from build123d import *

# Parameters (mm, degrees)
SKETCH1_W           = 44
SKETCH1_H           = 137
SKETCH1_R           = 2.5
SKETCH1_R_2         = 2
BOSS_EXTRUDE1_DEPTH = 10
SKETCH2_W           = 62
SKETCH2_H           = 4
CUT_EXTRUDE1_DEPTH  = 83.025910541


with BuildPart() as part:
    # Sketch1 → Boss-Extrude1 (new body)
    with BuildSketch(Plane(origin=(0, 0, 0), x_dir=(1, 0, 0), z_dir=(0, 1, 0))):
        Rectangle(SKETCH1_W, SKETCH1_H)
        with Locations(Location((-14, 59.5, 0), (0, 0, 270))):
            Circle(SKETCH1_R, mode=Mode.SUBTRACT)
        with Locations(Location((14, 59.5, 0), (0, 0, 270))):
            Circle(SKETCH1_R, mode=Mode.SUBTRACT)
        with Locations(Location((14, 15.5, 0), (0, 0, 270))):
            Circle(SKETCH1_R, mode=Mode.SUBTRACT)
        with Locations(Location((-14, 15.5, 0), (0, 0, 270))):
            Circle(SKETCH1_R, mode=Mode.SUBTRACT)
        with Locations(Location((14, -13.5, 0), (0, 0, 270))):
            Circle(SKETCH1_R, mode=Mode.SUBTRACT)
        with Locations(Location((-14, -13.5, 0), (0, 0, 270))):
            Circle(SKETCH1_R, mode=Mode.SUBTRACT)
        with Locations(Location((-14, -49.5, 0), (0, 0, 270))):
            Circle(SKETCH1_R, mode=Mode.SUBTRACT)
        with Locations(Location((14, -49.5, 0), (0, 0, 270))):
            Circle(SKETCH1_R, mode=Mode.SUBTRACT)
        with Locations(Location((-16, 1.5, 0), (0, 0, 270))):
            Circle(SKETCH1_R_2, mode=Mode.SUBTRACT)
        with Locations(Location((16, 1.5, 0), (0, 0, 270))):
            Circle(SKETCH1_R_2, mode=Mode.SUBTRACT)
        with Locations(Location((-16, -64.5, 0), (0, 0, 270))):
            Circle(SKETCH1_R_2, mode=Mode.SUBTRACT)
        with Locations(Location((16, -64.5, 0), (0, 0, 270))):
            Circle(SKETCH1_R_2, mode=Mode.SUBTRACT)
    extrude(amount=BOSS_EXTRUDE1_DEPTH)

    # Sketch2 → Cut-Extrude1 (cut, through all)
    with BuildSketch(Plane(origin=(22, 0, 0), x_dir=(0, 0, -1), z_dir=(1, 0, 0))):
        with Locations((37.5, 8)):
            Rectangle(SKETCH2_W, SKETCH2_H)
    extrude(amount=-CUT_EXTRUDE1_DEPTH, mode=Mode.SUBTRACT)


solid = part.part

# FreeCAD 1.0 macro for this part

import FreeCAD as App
import Part
import Sketcher

V = App.Vector
Q = App.Units.Quantity


def add_polygon(sketch, points):
    """Adds a closed chain of lines whose ends are joined by coincident constraints."""
    first, n = sketch.GeometryCount, len(points)
    for a, b in zip(points, points[1:] + points[:1]):
        sketch.addGeometry(Part.LineSegment(App.Vector(*a, 0), App.Vector(*b, 0)), False)
    for i in range(n):
        sketch.addConstraint(Sketcher.Constraint("Coincident", first + i, 2, first + (i + 1) % n, 1))

doc = App.newDocument("Part")
params = doc.addObject("Spreadsheet::Sheet", "Params")
for row, (alias, value) in enumerate([
    ("sketch1_diameter", "4 mm"),
    ("sketch1_diameter2", "5 mm"),
    ("sketch1_width", "44 mm"),
    ("sketch1_height", "137 mm"),
    ("pad1_length", "10 mm"),
    ("sketch2_width", "4 mm"),
    ("sketch2_height", "62 mm"),
], start=1):
    params.set(f"A{row}", alias)
    params.set(f"B{row}", "=" + value)
    params.setAlias(f"B{row}", alias)

body = doc.addObject("PartDesign::Body", "Body")

# Sketch on XZ plane
sketch1 = body.newObject("Sketcher::SketchObject", "Sketch")
sketch1.AttachmentSupport = (doc.getObject("XZ_Plane"), [""])
sketch1.MapMode = "FlatFace"
add_polygon(sketch1, [(-22, -68.5), (-22, 68.5), (22, 68.5), (22, -68.5)])  # lines 0-3
sketch1.addGeometry(Part.Circle(V(-16, 64.5, 0), V(0, 0, 1), 2), False)  # 4
sketch1.addGeometry(Part.Circle(V(-14, 49.5, 0), V(0, 0, 1), 2.5), False)  # 5
sketch1.addGeometry(Part.Circle(V(-14, 13.5, 0), V(0, 0, 1), 2.5), False)  # 6
sketch1.addGeometry(Part.Circle(V(16, 64.5, 0), V(0, 0, 1), 2), False)  # 7
sketch1.addGeometry(Part.Circle(V(14, 49.5, 0), V(0, 0, 1), 2.5), False)  # 8
sketch1.addGeometry(Part.Circle(V(14, 13.5, 0), V(0, 0, 1), 2.5), False)  # 9
sketch1.addGeometry(Part.Circle(V(-16, -1.5, 0), V(0, 0, 1), 2), False)  # 10
sketch1.addGeometry(Part.Circle(V(-14, -15.5, 0), V(0, 0, 1), 2.5), False)  # 11
sketch1.addGeometry(Part.Circle(V(-14, -59.5, 0), V(0, 0, 1), 2.5), False)  # 12
sketch1.addGeometry(Part.Circle(V(16, -1.5, 0), V(0, 0, 1), 2), False)  # 13
sketch1.addGeometry(Part.Circle(V(14, -15.5, 0), V(0, 0, 1), 2.5), False)  # 14
sketch1.addGeometry(Part.Circle(V(14, -59.5, 0), V(0, 0, 1), 2.5), False)  # 15
sketch1.addConstraint(Sketcher.Constraint("Vertical", 0))
sketch1.addConstraint(Sketcher.Constraint("Horizontal", 1))
sketch1.addConstraint(Sketcher.Constraint("Vertical", 2))
sketch1.addConstraint(Sketcher.Constraint("Horizontal", 3))
sketch1.addConstraint(Sketcher.Constraint("Equal", 5, 6))
sketch1.addConstraint(Sketcher.Constraint("Equal", 4, 7))
sketch1.addConstraint(Sketcher.Constraint("Equal", 6, 8))
sketch1.addConstraint(Sketcher.Constraint("Equal", 8, 9))
sketch1.addConstraint(Sketcher.Constraint("Equal", 7, 10))
sketch1.addConstraint(Sketcher.Constraint("Equal", 9, 11))
sketch1.addConstraint(Sketcher.Constraint("Equal", 11, 12))
sketch1.addConstraint(Sketcher.Constraint("Equal", 10, 13))
sketch1.addConstraint(Sketcher.Constraint("Equal", 12, 14))
sketch1.addConstraint(Sketcher.Constraint("Equal", 14, 15))
sketch1.addConstraint(Sketcher.Constraint("Symmetric", 0, 2, 2, 2, -1, 1))
sketch1.addConstraint(Sketcher.Constraint("Symmetric", 4, 3, 7, 3, -2))
sketch1.addConstraint(Sketcher.Constraint("Symmetric", 5, 3, 8, 3, -2))
sketch1.addConstraint(Sketcher.Constraint("Symmetric", 6, 3, 9, 3, -2))
sketch1.addConstraint(Sketcher.Constraint("Symmetric", 10, 3, 13, 3, -2))
sketch1.addConstraint(Sketcher.Constraint("Symmetric", 11, 3, 14, 3, -2))
sketch1.addConstraint(Sketcher.Constraint("Symmetric", 12, 3, 15, 3, -2))
sketch1.addConstraint(Sketcher.Constraint("Vertical", 5, 3, 6, 3))
sketch1.addConstraint(Sketcher.Constraint("Vertical", 4, 3, 10, 3))
sketch1.addConstraint(Sketcher.Constraint("Vertical", 6, 3, 11, 3))
sketch1.addConstraint(Sketcher.Constraint("Vertical", 11, 3, 12, 3))
sketch1.addConstraint(Sketcher.Constraint("Diameter", 4, Q("4 mm")))
sketch1.addConstraint(Sketcher.Constraint("Diameter", 5, Q("5 mm")))
sketch1.addConstraint(Sketcher.Constraint("DistanceX", 1, 1, 1, 2, Q("44 mm")))
sketch1.addConstraint(Sketcher.Constraint("DistanceY", 0, 1, 0, 2, Q("137 mm")))
sketch1.addConstraint(Sketcher.Constraint("DistanceX", 4, 3, -1, 1, Q("16 mm")))
sketch1.addConstraint(Sketcher.Constraint("DistanceX", 5, 3, -1, 1, Q("14 mm")))
sketch1.addConstraint(Sketcher.Constraint("DistanceY", 5, 3, 4, 3, Q("15 mm")))
sketch1.addConstraint(Sketcher.Constraint("DistanceY", 6, 3, 5, 3, Q("36 mm")))
sketch1.addConstraint(Sketcher.Constraint("DistanceY", 10, 3, 6, 3, Q("15 mm")))
sketch1.addConstraint(Sketcher.Constraint("DistanceY", 11, 3, 10, 3, Q("14 mm")))
sketch1.addConstraint(Sketcher.Constraint("DistanceY", 12, 3, 11, 3, Q("44 mm")))
sketch1.addConstraint(Sketcher.Constraint("DistanceY", 4, 3, 0, 2, Q("4 mm")))
sketch1.setExpression("Constraints[29]", "Params.sketch1_diameter")
sketch1.setExpression("Constraints[30]", "Params.sketch1_diameter2")
sketch1.setExpression("Constraints[31]", "Params.sketch1_width")
sketch1.setExpression("Constraints[32]", "Params.sketch1_height")
pad1 = body.newObject("PartDesign::Pad", "Pad")
pad1.Profile = sketch1
pad1.setExpression("Length", "Params.pad1_length")
pad1.Reversed = True

# Sketch on YZ plane
sketch2 = body.newObject("Sketcher::SketchObject", "Sketch001")
sketch2.AttachmentSupport = (doc.getObject("YZ_Plane"), [""])
sketch2.MapMode = "FlatFace"
sketch2.AttachmentOffset = App.Placement(V(0, 0, 22), App.Rotation())
add_polygon(sketch2, [(10, -6.5), (6, -6.5), (6, -68.5), (10, -68.5)])  # lines 0-3
sketch2.addConstraint(Sketcher.Constraint("Horizontal", 0))
sketch2.addConstraint(Sketcher.Constraint("Vertical", 1))
sketch2.addConstraint(Sketcher.Constraint("Horizontal", 2))
sketch2.addConstraint(Sketcher.Constraint("Vertical", 3))
sketch2.addConstraint(Sketcher.Constraint("DistanceX", 0, 2, 0, 1, Q("4 mm")))
sketch2.addConstraint(Sketcher.Constraint("DistanceY", 1, 2, 1, 1, Q("62 mm")))
sketch2.addConstraint(Sketcher.Constraint("DistanceX", -1, 1, 0, 2, Q("6 mm")))
sketch2.addConstraint(Sketcher.Constraint("DistanceY", 0, 2, -1, 1, Q("6.5 mm")))
sketch2.setExpression("Constraints[8]", "Params.sketch2_width")
sketch2.setExpression("Constraints[9]", "Params.sketch2_height")
pocket1 = body.newObject("PartDesign::Pocket", "Pocket")
pocket1.Profile = sketch2
pocket1.Type = "ThroughAll"

doc.recompute()
